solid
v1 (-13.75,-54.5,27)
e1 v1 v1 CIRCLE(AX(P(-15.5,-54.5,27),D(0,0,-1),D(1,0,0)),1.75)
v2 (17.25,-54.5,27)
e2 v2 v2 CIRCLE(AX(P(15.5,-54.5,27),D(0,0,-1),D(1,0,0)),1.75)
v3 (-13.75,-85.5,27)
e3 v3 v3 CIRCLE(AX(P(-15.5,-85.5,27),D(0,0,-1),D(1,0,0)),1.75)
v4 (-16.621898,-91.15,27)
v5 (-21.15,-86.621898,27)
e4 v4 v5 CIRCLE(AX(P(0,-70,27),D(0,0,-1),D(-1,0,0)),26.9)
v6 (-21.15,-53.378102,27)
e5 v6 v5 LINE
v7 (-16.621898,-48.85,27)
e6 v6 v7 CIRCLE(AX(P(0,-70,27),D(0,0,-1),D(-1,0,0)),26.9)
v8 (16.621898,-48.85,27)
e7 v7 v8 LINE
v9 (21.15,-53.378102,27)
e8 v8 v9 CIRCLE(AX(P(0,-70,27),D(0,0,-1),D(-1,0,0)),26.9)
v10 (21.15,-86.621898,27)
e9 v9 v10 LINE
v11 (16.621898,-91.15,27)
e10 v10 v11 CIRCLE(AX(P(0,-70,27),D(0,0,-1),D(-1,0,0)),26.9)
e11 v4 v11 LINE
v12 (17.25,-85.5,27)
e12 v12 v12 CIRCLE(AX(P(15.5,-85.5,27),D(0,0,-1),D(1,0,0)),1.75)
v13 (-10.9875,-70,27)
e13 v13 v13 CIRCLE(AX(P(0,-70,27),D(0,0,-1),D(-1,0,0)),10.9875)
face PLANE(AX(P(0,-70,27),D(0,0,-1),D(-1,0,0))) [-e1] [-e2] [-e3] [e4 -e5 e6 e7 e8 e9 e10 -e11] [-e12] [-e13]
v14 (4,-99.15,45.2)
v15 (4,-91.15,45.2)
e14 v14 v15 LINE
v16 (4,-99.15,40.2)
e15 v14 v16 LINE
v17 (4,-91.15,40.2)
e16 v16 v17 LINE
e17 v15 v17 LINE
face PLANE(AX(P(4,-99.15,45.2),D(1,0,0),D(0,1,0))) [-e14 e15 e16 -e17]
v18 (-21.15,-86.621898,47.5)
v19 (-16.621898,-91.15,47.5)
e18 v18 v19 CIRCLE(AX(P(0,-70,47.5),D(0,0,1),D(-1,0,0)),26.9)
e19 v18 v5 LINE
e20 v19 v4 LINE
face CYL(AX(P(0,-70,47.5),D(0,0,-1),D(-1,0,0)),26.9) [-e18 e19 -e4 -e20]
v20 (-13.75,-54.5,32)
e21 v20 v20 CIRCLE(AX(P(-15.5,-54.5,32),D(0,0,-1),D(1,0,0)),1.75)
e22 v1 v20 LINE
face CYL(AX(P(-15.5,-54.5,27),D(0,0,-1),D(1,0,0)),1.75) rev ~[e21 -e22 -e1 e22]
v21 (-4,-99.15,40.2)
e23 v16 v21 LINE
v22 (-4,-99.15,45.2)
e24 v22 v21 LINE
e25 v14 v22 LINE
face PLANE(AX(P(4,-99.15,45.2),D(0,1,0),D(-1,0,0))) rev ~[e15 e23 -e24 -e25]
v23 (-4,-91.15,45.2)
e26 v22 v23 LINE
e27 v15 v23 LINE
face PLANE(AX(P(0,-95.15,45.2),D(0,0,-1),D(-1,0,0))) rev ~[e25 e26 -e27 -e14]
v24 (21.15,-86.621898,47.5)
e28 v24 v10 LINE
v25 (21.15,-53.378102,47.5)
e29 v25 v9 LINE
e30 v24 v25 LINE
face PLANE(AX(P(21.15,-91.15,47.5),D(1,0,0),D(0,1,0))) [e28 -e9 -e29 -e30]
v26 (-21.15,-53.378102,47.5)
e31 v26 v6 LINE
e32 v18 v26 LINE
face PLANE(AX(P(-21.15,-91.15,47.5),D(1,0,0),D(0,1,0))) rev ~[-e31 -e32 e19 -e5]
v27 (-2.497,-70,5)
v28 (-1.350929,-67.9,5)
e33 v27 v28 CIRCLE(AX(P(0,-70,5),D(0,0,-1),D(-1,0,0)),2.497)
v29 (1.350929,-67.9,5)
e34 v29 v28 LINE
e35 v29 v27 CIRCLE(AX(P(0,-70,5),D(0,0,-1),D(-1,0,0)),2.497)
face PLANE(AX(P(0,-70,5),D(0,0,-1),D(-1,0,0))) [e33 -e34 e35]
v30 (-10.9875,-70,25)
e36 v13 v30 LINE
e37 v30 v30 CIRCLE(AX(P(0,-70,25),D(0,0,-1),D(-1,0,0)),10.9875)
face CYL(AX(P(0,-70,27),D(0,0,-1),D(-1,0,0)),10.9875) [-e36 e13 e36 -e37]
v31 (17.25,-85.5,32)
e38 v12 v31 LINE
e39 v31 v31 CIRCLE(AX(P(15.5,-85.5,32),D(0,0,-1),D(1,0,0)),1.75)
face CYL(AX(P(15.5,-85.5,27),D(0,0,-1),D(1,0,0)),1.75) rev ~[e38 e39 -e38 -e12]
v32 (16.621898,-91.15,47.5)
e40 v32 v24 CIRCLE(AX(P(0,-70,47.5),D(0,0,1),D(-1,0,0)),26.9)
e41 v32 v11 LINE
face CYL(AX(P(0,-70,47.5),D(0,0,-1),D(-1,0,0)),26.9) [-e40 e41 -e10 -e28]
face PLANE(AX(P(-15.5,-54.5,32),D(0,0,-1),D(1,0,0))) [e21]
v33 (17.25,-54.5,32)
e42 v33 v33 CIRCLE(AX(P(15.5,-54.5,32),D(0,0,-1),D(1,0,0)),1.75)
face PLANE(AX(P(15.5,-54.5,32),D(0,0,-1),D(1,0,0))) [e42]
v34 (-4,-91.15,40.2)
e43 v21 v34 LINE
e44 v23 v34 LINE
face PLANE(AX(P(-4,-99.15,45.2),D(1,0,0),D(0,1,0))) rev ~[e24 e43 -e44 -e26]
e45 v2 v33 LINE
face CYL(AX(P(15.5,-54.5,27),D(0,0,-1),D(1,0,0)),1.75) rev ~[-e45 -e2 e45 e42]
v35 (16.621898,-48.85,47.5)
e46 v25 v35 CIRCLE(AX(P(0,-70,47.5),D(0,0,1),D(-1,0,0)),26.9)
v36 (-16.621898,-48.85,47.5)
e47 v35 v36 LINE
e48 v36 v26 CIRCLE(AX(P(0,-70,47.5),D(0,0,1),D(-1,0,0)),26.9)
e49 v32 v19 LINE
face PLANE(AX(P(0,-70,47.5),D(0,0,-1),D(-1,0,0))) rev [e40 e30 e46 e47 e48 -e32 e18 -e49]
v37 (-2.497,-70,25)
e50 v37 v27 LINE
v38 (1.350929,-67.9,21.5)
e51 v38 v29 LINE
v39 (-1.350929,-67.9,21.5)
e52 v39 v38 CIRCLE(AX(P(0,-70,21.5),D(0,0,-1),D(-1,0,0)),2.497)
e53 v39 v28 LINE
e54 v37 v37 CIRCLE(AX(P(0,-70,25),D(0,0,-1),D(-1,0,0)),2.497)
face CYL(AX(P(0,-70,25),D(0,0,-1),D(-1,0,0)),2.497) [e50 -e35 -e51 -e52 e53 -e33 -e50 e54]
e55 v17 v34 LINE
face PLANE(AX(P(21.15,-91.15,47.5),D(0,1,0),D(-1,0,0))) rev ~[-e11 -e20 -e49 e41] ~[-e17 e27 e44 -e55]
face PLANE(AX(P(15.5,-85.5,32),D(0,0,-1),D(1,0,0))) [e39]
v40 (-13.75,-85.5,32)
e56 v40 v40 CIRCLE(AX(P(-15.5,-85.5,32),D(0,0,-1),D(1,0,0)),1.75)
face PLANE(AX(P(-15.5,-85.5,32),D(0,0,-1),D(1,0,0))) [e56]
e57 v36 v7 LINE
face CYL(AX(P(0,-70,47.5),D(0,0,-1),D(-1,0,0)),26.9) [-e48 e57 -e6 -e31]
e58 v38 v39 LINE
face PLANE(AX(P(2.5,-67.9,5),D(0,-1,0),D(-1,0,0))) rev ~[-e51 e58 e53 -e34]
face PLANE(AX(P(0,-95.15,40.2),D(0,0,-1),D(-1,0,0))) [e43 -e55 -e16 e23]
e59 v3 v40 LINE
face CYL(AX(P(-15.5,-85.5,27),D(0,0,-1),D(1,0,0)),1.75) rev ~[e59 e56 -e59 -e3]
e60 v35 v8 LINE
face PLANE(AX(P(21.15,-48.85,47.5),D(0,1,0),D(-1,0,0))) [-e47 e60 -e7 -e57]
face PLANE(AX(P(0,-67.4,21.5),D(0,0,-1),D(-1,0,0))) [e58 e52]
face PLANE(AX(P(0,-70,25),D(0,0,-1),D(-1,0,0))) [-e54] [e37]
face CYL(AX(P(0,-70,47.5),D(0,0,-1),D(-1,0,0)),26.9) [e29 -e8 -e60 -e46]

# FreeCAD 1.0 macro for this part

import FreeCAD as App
import Part
import Sketcher

doc = App.newDocument("Part")
params = doc.addObject("Spreadsheet::Sheet", "Params")
for row, (alias, value) in enumerate([
    ("sketch1_height", "2 mm"),
    ("sketch1_height2", "20 mm"),
    ("sketch1_width", "26.9 mm"),
    ("sketch1_height3", "20.5 mm"),
    ("revolution_angle", "360 deg"),
    ("sketch2_width", "5 mm"),
    ("sketch2_height", "1 mm"),
    ("pocket1_length", "16.5 mm"),
    ("sketch3_diameter", "110 mm"),
    ("sketch3_width", "42.3 mm"),
    ("sketch4_diameter", "3.5 mm"),
    ("pocket3_length", "5 mm"),
    ("sketch5_width", "8 mm"),
    ("pad1_length", "5 mm"),
], start=1):
    params.set(f"A{row}", alias)
    params.set(f"B{row}", "=" + value)
    params.setAlias(f"B{row}", alias)

body = doc.addObject("PartDesign::Body", "Body")

# Sketch on XZ plane
sketch1 = body.newObject("Sketcher::SketchObject", "Sketch")
sketch1.AttachmentSupport = (doc.getObject("XZ_Plane"), [""])
sketch1.MapMode = "FlatFace"
sketch1.addGeometry([
    Part.LineSegment(App.Vector(0, 0, 0), App.Vector(26.9, 0, 0)),  # 0
    Part.LineSegment(App.Vector(26.9, 0, 0), App.Vector(26.9, 20.5, 0)),  # 1
    Part.LineSegment(App.Vector(26.9, 20.5, 0), App.Vector(11, 20.5, 0)),  # 2
    Part.LineSegment(App.Vector(11, 20.5, 0), App.Vector(11, 22.5, 0)),  # 3
    Part.LineSegment(App.Vector(11, 22.5, 0), App.Vector(2.5, 22.5, 0)),  # 4
    Part.LineSegment(App.Vector(2.5, 22.5, 0), App.Vector(2.5, 42.5, 0)),  # 5
    Part.LineSegment(App.Vector(2.5, 42.5, 0), App.Vector(0, 42.5, 0)),  # 6
    Part.LineSegment(App.Vector(0, 42.5, 0), App.Vector(0, 0, 0)),  # 7
], False)
sketch1.addConstraint([
    Sketcher.Constraint("Coincident", 0, 2, 1, 1),
    Sketcher.Constraint("Coincident", 1, 2, 2, 1),
    Sketcher.Constraint("Coincident", 2, 2, 3, 1),
    Sketcher.Constraint("Coincident", 3, 2, 4, 1),
    Sketcher.Constraint("Coincident", 4, 2, 5, 1),
    Sketcher.Constraint("Coincident", 5, 2, 6, 1),
    Sketcher.Constraint("Coincident", 6, 2, 7, 1),
    Sketcher.Constraint("Coincident", 7, 2, 0, 1),
    Sketcher.Constraint("Horizontal", 0),
    Sketcher.Constraint("Vertical", 1),
    Sketcher.Constraint("Horizontal", 2),
    Sketcher.Constraint("Vertical", 3),
    Sketcher.Constraint("Horizontal", 4),
    Sketcher.Constraint("Vertical", 5),
    Sketcher.Constraint("Horizontal", 6),
    Sketcher.Constraint("Vertical", 7),
    Sketcher.Constraint("Coincident", 7, 2, -1, 1),
    Sketcher.Constraint("DistanceY", 3, 1, 3, 2, 2.0),
    Sketcher.Constraint("DistanceY", 5, 1, 5, 2, 20.0),
    Sketcher.Constraint("DistanceX", 0, 1, 0, 2, 26.9),
    Sketcher.Constraint("DistanceY", 1, 1, 1, 2, 20.5),
    Sketcher.Constraint("DistanceX", 6, 2, 6, 1, 2.497),
    Sketcher.Constraint("DistanceX", 2, 2, 2, 1, 15.9125),
])
sketch1.setExpression("Constraints[17]", "Params.sketch1_height")
sketch1.setExpression("Constraints[18]", "Params.sketch1_height2")
sketch1.setExpression("Constraints[19]", "Params.sketch1_width")
sketch1.setExpression("Constraints[20]", "Params.sketch1_height3")
revolution = body.newObject("PartDesign::Revolution", "Revolution")
revolution.Profile = sketch1
revolution.ReferenceAxis = (sketch1, ["V_Axis"])
revolution.setExpression("Angle", "Params.revolution_angle")

# Sketch on XY plane
sketch2 = body.newObject("Sketcher::SketchObject", "Sketch001")
sketch2.AttachmentSupport = (doc.getObject("XY_Plane"), [""])
sketch2.MapMode = "FlatFace"
sketch2.AttachmentOffset = App.Placement(App.Vector(0, 0, 42.5), App.Rotation())
sketch2.addGeometry([
    Part.LineSegment(App.Vector(-2.5, 3.1, 0), App.Vector(-2.5, 2.1, 0)),
    Part.LineSegment(App.Vector(-2.5, 2.1, 0), App.Vector(2.5, 2.1, 0)),
    Part.LineSegment(App.Vector(2.5, 2.1, 0), App.Vector(2.5, 3.1, 0)),
    Part.LineSegment(App.Vector(2.5, 3.1, 0), App.Vector(-2.5, 3.1, 0)),
], False)
sketch2.addConstraint([
    Sketcher.Constraint("Coincident", 0, 2, 1, 1),
    Sketcher.Constraint("Coincident", 1, 2, 2, 1),
    Sketcher.Constraint("Coincident", 2, 2, 3, 1),
    Sketcher.Constraint("Coincident", 3, 2, 0, 1),
    Sketcher.Constraint("Vertical", 0),
    Sketcher.Constraint("Horizontal", 1),
    Sketcher.Constraint("Vertical", 2),
    Sketcher.Constraint("Horizontal", 3),
    Sketcher.Constraint("DistanceX", 1, 1, 1, 2, 5.0),
    Sketcher.Constraint("DistanceY", 0, 2, 0, 1, 1.0),
    Sketcher.Constraint("DistanceX", 0, 2, -1, 1, 2.5),
    Sketcher.Constraint("DistanceY", -1, 1, 0, 2, 2.1),
])
sketch2.setExpression("Constraints[8]", "Params.sketch2_width")
sketch2.setExpression("Constraints[9]", "Params.sketch2_height")
pocket1 = body.newObject("PartDesign::Pocket", "Pocket")
pocket1.Profile = sketch2
pocket1.setExpression("Length", "Params.pocket1_length")

# Sketch on XY plane
sketch3 = body.newObject("Sketcher::SketchObject", "Sketch002")
sketch3.AttachmentSupport = (doc.getObject("XY_Plane"), [""])
sketch3.MapMode = "FlatFace"
sketch3.addGeometry([
    Part.Circle(App.Vector(0, 0, 0), App.Vector(0, 0, 1), 55),  # 0
    Part.LineSegment(App.Vector(21, -21, 0), App.Vector(-21, -21, 0)),  # 1
    Part.LineSegment(App.Vector(-21, -21, 0), App.Vector(-21, 21, 0)),  # 2
    Part.LineSegment(App.Vector(-21, 21, 0), App.Vector(21, 21, 0)),  # 3
    Part.LineSegment(App.Vector(21, 21, 0), App.Vector(21, -21, 0)),  # 4
], False)
sketch3.addConstraint([
    Sketcher.Constraint("Coincident", 1, 2, 2, 1),
    Sketcher.Constraint("Coincident", 2, 2, 3, 1),
    Sketcher.Constraint("Coincident", 3, 2, 4, 1),
    Sketcher.Constraint("Coincident", 4, 2, 1, 1),
    Sketcher.Constraint("Horizontal", 1),
    Sketcher.Constraint("Vertical", 2),
    Sketcher.Constraint("Horizontal", 3),
    Sketcher.Constraint("Vertical", 4),
    Sketcher.Constraint("Coincident", 0, 3, -1, 1),
    Sketcher.Constraint("Symmetric", 1, 2, 3, 2, -1, 1),
    Sketcher.Constraint("Equal", 3, 2),
    Sketcher.Constraint("Diameter", 0, 110.0),
    Sketcher.Constraint("DistanceX", 1, 2, 1, 1, 42.3),
])
sketch3.setExpression("Constraints[11]", "Params.sketch3_diameter")
sketch3.setExpression("Constraints[12]", "Params.sketch3_width")
pocket2 = body.newObject("PartDesign::Pocket", "Pocket001")
pocket2.Profile = sketch3
pocket2.Type = "ThroughAll"
pocket2.Midplane = True

# Sketch on XY plane
sketch4 = body.newObject("Sketcher::SketchObject", "Sketch003")
sketch4.AttachmentSupport = (doc.getObject("XY_Plane"), [""])
sketch4.MapMode = "FlatFace"
sketch4.AttachmentOffset = App.Placement(App.Vector(0, 0, 20.5), App.Rotation())
sketch4.addGeometry([
    Part.Circle(App.Vector(15.5, -15.5, 0), App.Vector(0, 0, 1), 1.8),
    Part.Circle(App.Vector(-15.5, -15.5, 0), App.Vector(0, 0, 1), 1.8),
    Part.Circle(App.Vector(-15.5, 15.5, 0), App.Vector(0, 0, 1), 1.8),
    Part.Circle(App.Vector(15.5, 15.5, 0), App.Vector(0, 0, 1), 1.8),
], False)
sketch4.addConstraint([
    Sketcher.Constraint("Equal", 0, 1),
    Sketcher.Constraint("Equal", 1, 2),
    Sketcher.Constraint("Equal", 2, 3),
    Sketcher.Constraint("Symmetric", 0, 3, 2, 3, -1, 1),
    Sketcher.Constraint("Symmetric", 1, 3, 3, 3, -1, 1),
    Sketcher.Constraint("Symmetric", 0, 3, 1, 3, -2),
    Sketcher.Constraint("Diameter", 0, 3.5),
    Sketcher.Constraint("DistanceX", 1, 3, 0, 3, 31.0),
    Sketcher.Constraint("DistanceY", 1, 3, 2, 3, 31.0),
])
sketch4.setExpression("Constraints[6]", "Params.sketch4_diameter")
pocket3 = body.newObject("PartDesign::Pocket", "Pocket002")
pocket3.Profile = sketch4
pocket3.setExpression("Length", "Params.pocket3_length")

# Sketch on XY plane
sketch5 = body.newObject("Sketcher::SketchObject", "Sketch004")
sketch5.AttachmentSupport = (doc.getObject("XY_Plane"), [""])
sketch5.MapMode = "FlatFace"
sketch5.AttachmentOffset = App.Placement(App.Vector(0, 0, 2.3), App.Rotation())
sketch5.addGeometry([
    Part.LineSegment(App.Vector(-4, -21, 0), App.Vector(-4, -29, 0)),
    Part.LineSegment(App.Vector(-4, -29, 0), App.Vector(4, -29, 0)),
    Part.LineSegment(App.Vector(4, -29, 0), App.Vector(4, -21, 0)),
    Part.LineSegment(App.Vector(4, -21, 0), App.Vector(-4, -21, 0)),
], False)
sketch5.addConstraint([
    Sketcher.Constraint("Coincident", 0, 2, 1, 1),
    Sketcher.Constraint("Coincident", 1, 2, 2, 1),
    Sketcher.Constraint("Coincident", 2, 2, 3, 1),
    Sketcher.Constraint("Coincident", 3, 2, 0, 1),
    Sketcher.Constraint("Vertical", 0),
    Sketcher.Constraint("Horizontal", 1),
    Sketcher.Constraint("Vertical", 2),
    Sketcher.Constraint("Horizontal", 3),
    Sketcher.Constraint("Equal", 3, 0),
    Sketcher.Constraint("DistanceX", 1, 1, 1, 2, 8.0),
    Sketcher.Constraint("DistanceX", 0, 2, -1, 1, 4.0),
    Sketcher.Constraint("DistanceY", 0, 2, -1, 1, 29.15),
])
sketch5.setExpression("Constraints[9]", "Params.sketch5_width")
pad1 = body.newObject("PartDesign::Pad", "Pad")
pad1.Profile = sketch5
pad1.setExpression("Length", "Params.pad1_length")
body2 = doc.addObject("PartDesign::Body", "Body001")
doc.recompute()

body.Placement = App.Placement(App.Vector(0, -70, 47.5), App.Rotation(App.Vector(0, 1, 0), 180))
boolean = body2.newObject("PartDesign::Boolean", "Boolean")
boolean.Type = "Fuse"
boolean.addObjects([body])

doc.recompute()
